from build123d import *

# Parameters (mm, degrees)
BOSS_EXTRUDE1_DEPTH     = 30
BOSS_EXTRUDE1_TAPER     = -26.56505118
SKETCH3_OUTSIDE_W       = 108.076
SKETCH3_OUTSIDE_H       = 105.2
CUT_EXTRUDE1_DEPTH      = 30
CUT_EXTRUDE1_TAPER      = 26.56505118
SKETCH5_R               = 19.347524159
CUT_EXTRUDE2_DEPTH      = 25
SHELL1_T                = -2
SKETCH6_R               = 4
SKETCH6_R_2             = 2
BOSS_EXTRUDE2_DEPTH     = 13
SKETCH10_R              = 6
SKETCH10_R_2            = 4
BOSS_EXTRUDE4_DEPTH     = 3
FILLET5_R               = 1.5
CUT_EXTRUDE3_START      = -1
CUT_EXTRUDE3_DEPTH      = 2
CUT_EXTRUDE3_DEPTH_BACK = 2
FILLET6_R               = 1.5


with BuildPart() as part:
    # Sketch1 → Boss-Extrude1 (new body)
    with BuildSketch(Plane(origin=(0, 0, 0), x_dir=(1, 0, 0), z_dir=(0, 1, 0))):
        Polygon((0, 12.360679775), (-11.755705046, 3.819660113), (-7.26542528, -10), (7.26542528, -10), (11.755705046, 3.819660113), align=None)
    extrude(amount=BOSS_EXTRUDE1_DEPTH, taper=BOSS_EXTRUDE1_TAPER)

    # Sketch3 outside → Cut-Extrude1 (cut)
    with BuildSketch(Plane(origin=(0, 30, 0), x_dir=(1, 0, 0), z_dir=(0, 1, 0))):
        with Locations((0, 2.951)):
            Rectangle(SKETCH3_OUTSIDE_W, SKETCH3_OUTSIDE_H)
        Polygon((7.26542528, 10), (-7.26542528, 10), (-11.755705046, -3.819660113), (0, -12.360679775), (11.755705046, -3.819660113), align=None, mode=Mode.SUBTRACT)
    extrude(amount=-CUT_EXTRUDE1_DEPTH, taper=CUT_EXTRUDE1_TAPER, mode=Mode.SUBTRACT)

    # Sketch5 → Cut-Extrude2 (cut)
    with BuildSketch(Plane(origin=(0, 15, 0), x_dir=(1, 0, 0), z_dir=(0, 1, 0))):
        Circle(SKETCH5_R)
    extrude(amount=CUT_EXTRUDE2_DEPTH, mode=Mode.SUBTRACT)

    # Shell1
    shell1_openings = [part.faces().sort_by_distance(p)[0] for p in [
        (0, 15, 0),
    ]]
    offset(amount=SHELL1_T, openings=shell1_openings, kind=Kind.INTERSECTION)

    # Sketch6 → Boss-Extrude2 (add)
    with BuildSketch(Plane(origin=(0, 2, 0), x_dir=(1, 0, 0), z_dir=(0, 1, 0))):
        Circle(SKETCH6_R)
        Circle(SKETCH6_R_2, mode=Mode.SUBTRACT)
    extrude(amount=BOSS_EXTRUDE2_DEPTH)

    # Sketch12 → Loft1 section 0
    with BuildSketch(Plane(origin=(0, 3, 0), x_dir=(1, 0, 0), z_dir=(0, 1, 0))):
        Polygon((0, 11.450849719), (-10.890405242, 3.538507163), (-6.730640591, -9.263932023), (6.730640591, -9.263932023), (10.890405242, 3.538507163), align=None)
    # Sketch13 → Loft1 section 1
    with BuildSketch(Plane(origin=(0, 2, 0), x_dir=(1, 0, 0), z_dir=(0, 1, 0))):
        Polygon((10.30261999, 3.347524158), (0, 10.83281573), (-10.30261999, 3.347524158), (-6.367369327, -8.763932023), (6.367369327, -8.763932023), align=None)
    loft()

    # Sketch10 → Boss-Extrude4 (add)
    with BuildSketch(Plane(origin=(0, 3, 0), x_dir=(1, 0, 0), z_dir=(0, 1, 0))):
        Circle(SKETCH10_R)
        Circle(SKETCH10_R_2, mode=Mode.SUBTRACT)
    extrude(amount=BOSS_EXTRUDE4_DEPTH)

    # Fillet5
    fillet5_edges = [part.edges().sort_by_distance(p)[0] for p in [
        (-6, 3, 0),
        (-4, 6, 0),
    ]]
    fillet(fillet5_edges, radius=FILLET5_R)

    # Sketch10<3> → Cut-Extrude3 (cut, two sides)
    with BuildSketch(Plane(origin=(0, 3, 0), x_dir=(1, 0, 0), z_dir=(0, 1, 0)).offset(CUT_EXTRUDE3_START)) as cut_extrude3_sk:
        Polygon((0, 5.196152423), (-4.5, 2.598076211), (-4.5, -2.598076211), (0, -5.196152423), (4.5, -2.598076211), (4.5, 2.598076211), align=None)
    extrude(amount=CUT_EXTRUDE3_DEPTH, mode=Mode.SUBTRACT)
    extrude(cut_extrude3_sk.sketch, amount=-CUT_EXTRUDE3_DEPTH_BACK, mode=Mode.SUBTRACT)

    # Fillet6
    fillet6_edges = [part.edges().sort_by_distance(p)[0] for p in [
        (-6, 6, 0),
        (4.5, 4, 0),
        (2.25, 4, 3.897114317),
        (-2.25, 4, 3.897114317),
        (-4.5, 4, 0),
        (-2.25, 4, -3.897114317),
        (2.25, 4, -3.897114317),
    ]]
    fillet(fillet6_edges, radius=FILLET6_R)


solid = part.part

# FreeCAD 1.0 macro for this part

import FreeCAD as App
import Part
import Sketcher
Q = App.Units.Quantity


def edges_at(feature, points):
    """Names of the edges that pass closest to the given points."""
    edges = feature.Shape.Edges
    near = lambda p: min(range(len(edges)), key=lambda i: edges[i].distToShape(Part.Vertex(*p))[0])
    return sorted({f"Edge{near(p) + 1}" for p in points})


def faces_at(feature, points):
    """Names of the faces that lie closest to the given points."""
    faces = feature.Shape.Faces
    near = lambda p: min(range(len(faces)), key=lambda i: faces[i].distToShape(Part.Vertex(*p))[0])
    return sorted({f"Face{near(p) + 1}" for p in points})


def add_polygon(sketch, points):
    """Adds a closed chain of lines whose ends are joined by coincident constraints."""
    first, n = sketch.GeometryCount, len(points)
    for a, b in zip(points, points[1:] + points[:1]):
        sketch.addGeometry(Part.LineSegment(App.Vector(*a, 0), App.Vector(*b, 0)), False)
    for i in range(n):
        sketch.addConstraint(Sketcher.Constraint("Coincident", first + i, 2, first + (i + 1) % n, 1))

doc = App.newDocument("Part")
body = doc.addObject("PartDesign::Body", "Body")

sketch1 = doc.addObject("Sketcher::SketchObject", "Sketch")
body.addObject(sketch1)
sketch1.AttachmentSupport = (doc.XZ_Plane, [""])
sketch1.MapMode = "FlatFace"
add_polygon(sketch1, [(0, -12), (-12, -4), (-7, 10), (7, 10), (12, -4)])
sketch1.addConstraint([
    Sketcher.Constraint("Horizontal", 2),
    Sketcher.Constraint("Symmetric", 0, 2, 3, 2, -2),
    Sketcher.Constraint("PointOnObject", 4, 2, -2),
    Sketcher.Constraint("Equal", 0, 1),
    Sketcher.Constraint("Equal", 1, 3),
    Sketcher.Constraint("Angle", 0, Q("144 deg")),
    Sketcher.Constraint("Angle", 1, Q("72 deg")),
    Sketcher.Constraint("DistanceY", -1, 1, 1, 2, 10.0),
    Sketcher.Constraint("DistanceX", 2, 1, 2, 2, 14.530851),
])
pad1 = doc.addObject("PartDesign::Pad", "Pad")
body.addObject(pad1)
pad1.Profile = sketch1
pad1.Length = 30
pad1.Reversed = True
pad1.TaperAngle = 26.565051

sketch2 = doc.addObject("Sketcher::SketchObject", "Sketch001")
body.addObject(sketch2)
sketch2.AttachmentSupport = (doc.XZ_Plane, [""])
sketch2.MapMode = "FlatFace"
sketch2.AttachmentOffset = App.Placement(App.Vector(0, 0, -30), App.Rotation())
add_polygon(sketch2, [(-54, -56), (-54, 50), (54, 50), (54, -56)])
add_polygon(sketch2, [(-7, -10), (7, -10), (12, 4), (0, 12), (-12, 4)])
sketch2.addConstraint([
    Sketcher.Constraint("Vertical", 0),
    Sketcher.Constraint("Horizontal", 1),
    Sketcher.Constraint("Vertical", 2),
    Sketcher.Constraint("Horizontal", 3),
    Sketcher.Constraint("Horizontal", 4),
    Sketcher.Constraint("Symmetric", 5, 2, 7, 2, -2),
    Sketcher.Constraint("PointOnObject", 6, 2, -2),
    Sketcher.Constraint("Equal", 5, 6),
    Sketcher.Constraint("Equal", 7, 8),
    Sketcher.Constraint("Angle", 5, Q("72 deg")),
    Sketcher.Constraint("Angle", 6, Q("144 deg")),
    Sketcher.Constraint("DistanceY", 0, 1, 0, 2, 105.2),
    Sketcher.Constraint("DistanceY", 4, 2, -1, 1, 10.0),
    Sketcher.Constraint("DistanceX", 1, 1, 1, 2, 108.076),
    Sketcher.Constraint("DistanceX", 0, 2, -1, 1, 54.038),
    Sketcher.Constraint("DistanceY", -1, 1, 0, 2, 49.649),
    Sketcher.Constraint("DistanceX", 4, 1, 4, 2, 14.530851),
])
pocket1 = doc.addObject("PartDesign::Pocket", "Pocket")
body.addObject(pocket1)
pocket1.Profile = sketch2
pocket1.Length = 30
pocket1.Reversed = True
pocket1.TaperAngle = 26.565051

sketch3 = doc.addObject("Sketcher::SketchObject", "Sketch002")
body.addObject(sketch3)
sketch3.AttachmentSupport = (doc.XZ_Plane, [""])
sketch3.MapMode = "FlatFace"
sketch3.AttachmentOffset = App.Placement(App.Vector(0, 0, -15), App.Rotation())
sketch3.addGeometry(Part.Circle(App.Vector(0, 0, 0), App.Vector(0, 0, 1), 19), False)
sketch3.addConstraint([
    Sketcher.Constraint("Coincident", 0, 3, -1, 1),
    Sketcher.Constraint("Diameter", 0, 38.695048),
])
pocket2 = doc.addObject("PartDesign::Pocket", "Pocket001")
body.addObject(pocket2)
pocket2.Profile = sketch3
pocket2.Length = 25
doc.recompute()

thickness = doc.addObject("PartDesign::Thickness", "Thickness")
body.addObject(thickness)
thickness.Base = (pocket2, faces_at(pocket2, [(0, 15, 0)]))
thickness.Value = 2
thickness.Reversed = True
thickness.Join = "Intersection"

sketch4 = doc.addObject("Sketcher::SketchObject", "Sketch003")
body.addObject(sketch4)
sketch4.AttachmentSupport = (doc.XZ_Plane, [""])
sketch4.MapMode = "FlatFace"
sketch4.AttachmentOffset = App.Placement(App.Vector(0, 0, -2), App.Rotation())
sketch4.addGeometry([
    Part.Circle(App.Vector(0, 0, 0), App.Vector(0, 0, 1), 4),
    Part.Circle(App.Vector(0, 0, 0), App.Vector(0, 0, 1), 2),
], False)
sketch4.addConstraint([
    Sketcher.Constraint("Coincident", 0, 3, -1, 1),
    Sketcher.Constraint("Coincident", 1, 3, -1, 1),
    Sketcher.Constraint("Diameter", 0, 8.0),
    Sketcher.Constraint("Diameter", 1, 4.0),
])
pad2 = doc.addObject("PartDesign::Pad", "Pad001")
body.addObject(pad2)
pad2.Profile = sketch4
pad2.Length = 13
pad2.Reversed = True

sketch5 = doc.addObject("Sketcher::SketchObject", "Sketch004")
body.addObject(sketch5)
sketch5.AttachmentSupport = (doc.XZ_Plane, [""])
sketch5.MapMode = "FlatFace"
sketch5.AttachmentOffset = App.Placement(App.Vector(0, 0, -3), App.Rotation())
add_polygon(sketch5, [(0, -11), (-11, -4), (-7, 9), (7, 9), (11, -4)])
sketch5.addConstraint([
    Sketcher.Constraint("Horizontal", 2),
    Sketcher.Constraint("Symmetric", 0, 2, 3, 2, -2),
    Sketcher.Constraint("PointOnObject", 4, 2, -2),
    Sketcher.Constraint("Equal", 0, 1),
    Sketcher.Constraint("Equal", 1, 3),
    Sketcher.Constraint("Angle", 0, Q("144 deg")),
    Sketcher.Constraint("Angle", 1, Q("72 deg")),
    Sketcher.Constraint("DistanceX", 2, 1, 2, 2, 13.461281),
    Sketcher.Constraint("DistanceY", 4, 2, -1, 1, 11.45085),
])

sketch6 = doc.addObject("Sketcher::SketchObject", "Sketch005")
body.addObject(sketch6)
sketch6.AttachmentSupport = (doc.XZ_Plane, [""])
sketch6.MapMode = "FlatFace"
sketch6.AttachmentOffset = App.Placement(App.Vector(0, 0, -2), App.Rotation())
add_polygon(sketch6, [(10, -3), (0, -11), (-10, -3), (-6, 9), (6, 9)])
sketch6.addConstraint([
    Sketcher.Constraint("Horizontal", 3),
    Sketcher.Constraint("Symmetric", 1, 2, 4, 2, -2),
    Sketcher.Constraint("PointOnObject", 0, 2, -2),
    Sketcher.Constraint("Equal", 1, 2),
    Sketcher.Constraint("Equal", 2, 4),
    Sketcher.Constraint("Angle", 0, Q("-144 deg")),
    Sketcher.Constraint("Angle", 2, Q("72 deg")),
    Sketcher.Constraint("DistanceX", 3, 1, 3, 2, 12.734739),
    Sketcher.Constraint("DistanceY", 0, 2, -1, 1, 10.832816),
])

additiveloft = doc.addObject("PartDesign::AdditiveLoft", "AdditiveLoft")
body.addObject(additiveloft)
additiveloft.Profile = sketch5
additiveloft.Sections = [sketch6]

sketch7 = doc.addObject("Sketcher::SketchObject", "Sketch006")
body.addObject(sketch7)
sketch7.AttachmentSupport = (doc.XZ_Plane, [""])
sketch7.MapMode = "FlatFace"
sketch7.AttachmentOffset = App.Placement(App.Vector(0, 0, -3), App.Rotation())
sketch7.addGeometry([
    Part.Circle(App.Vector(0, 0, 0), App.Vector(0, 0, 1), 6),
    Part.Circle(App.Vector(0, 0, 0), App.Vector(0, 0, 1), 4),
], False)
sketch7.addConstraint([
    Sketcher.Constraint("Coincident", 0, 3, -1, 1),
    Sketcher.Constraint("Coincident", 1, 3, -1, 1),
    Sketcher.Constraint("Diameter", 0, 12.0),
    Sketcher.Constraint("Diameter", 1, 8.0),
])
pad3 = doc.addObject("PartDesign::Pad", "Pad002")
body.addObject(pad3)
pad3.Profile = sketch7
pad3.Length = 3
pad3.Reversed = True
doc.recompute()

fillet = doc.addObject("PartDesign::Fillet", "Fillet")
body.addObject(fillet)
fillet.Base = (pad3, edges_at(pad3, [(-6, 3, 0), (-4, 6, 0)]))
fillet.Radius = 1.5

sketch8 = doc.addObject("Sketcher::SketchObject", "Sketch007")
body.addObject(sketch8)
sketch8.AttachmentSupport = (doc.XZ_Plane, [""])
sketch8.MapMode = "FlatFace"
sketch8.AttachmentOffset = App.Placement(App.Vector(0, 0, -2), App.Rotation())
add_polygon(sketch8, [(0, -5), (-4, -3), (-4, 3), (0, 5), (4, 3), (4, -3)])
sketch8.addConstraint([
    Sketcher.Constraint("Vertical", 1),
    Sketcher.Constraint("Vertical", 4),
    Sketcher.Constraint("Symmetric", 0, 2, 3, 2, -1, 1),
    Sketcher.Constraint("Symmetric", 2, 2, 5, 2, -1, 1),
    Sketcher.Constraint("PointOnObject", 2, 2, -2),
    Sketcher.Constraint("Parallel", 2, 5),
    Sketcher.Constraint("Horizontal", 1, 2, 3, 2),
    Sketcher.Constraint("Angle", 0, Q("150 deg")),
    Sketcher.Constraint("DistanceX", 1, 2, 3, 2, 9.0),
    Sketcher.Constraint("DistanceY", 1, 1, 1, 2, 5.196152),
])
pocket3 = doc.addObject("PartDesign::Pocket", "Pocket002")
body.addObject(pocket3)
pocket3.Profile = sketch8
pocket3.Type = "TwoLengths"
pocket3.Length = 2
pocket3.Length2 = 2
doc.recompute()

fillet2 = doc.addObject("PartDesign::Fillet", "Fillet001")
body.addObject(fillet2)
fillet2.Base = (pocket3, edges_at(pocket3, [
    (-6, 6, 0),
    (4.5, 4, 0),
    (2.25, 4, 3.897),
    (-2.25, 4, 3.897),
    (-4.5, 4, 0),
    (-2.25, 4, -3.897),
    (2.25, 4, -3.897),
]))
fillet2.Radius = 1.5

doc.recompute()
